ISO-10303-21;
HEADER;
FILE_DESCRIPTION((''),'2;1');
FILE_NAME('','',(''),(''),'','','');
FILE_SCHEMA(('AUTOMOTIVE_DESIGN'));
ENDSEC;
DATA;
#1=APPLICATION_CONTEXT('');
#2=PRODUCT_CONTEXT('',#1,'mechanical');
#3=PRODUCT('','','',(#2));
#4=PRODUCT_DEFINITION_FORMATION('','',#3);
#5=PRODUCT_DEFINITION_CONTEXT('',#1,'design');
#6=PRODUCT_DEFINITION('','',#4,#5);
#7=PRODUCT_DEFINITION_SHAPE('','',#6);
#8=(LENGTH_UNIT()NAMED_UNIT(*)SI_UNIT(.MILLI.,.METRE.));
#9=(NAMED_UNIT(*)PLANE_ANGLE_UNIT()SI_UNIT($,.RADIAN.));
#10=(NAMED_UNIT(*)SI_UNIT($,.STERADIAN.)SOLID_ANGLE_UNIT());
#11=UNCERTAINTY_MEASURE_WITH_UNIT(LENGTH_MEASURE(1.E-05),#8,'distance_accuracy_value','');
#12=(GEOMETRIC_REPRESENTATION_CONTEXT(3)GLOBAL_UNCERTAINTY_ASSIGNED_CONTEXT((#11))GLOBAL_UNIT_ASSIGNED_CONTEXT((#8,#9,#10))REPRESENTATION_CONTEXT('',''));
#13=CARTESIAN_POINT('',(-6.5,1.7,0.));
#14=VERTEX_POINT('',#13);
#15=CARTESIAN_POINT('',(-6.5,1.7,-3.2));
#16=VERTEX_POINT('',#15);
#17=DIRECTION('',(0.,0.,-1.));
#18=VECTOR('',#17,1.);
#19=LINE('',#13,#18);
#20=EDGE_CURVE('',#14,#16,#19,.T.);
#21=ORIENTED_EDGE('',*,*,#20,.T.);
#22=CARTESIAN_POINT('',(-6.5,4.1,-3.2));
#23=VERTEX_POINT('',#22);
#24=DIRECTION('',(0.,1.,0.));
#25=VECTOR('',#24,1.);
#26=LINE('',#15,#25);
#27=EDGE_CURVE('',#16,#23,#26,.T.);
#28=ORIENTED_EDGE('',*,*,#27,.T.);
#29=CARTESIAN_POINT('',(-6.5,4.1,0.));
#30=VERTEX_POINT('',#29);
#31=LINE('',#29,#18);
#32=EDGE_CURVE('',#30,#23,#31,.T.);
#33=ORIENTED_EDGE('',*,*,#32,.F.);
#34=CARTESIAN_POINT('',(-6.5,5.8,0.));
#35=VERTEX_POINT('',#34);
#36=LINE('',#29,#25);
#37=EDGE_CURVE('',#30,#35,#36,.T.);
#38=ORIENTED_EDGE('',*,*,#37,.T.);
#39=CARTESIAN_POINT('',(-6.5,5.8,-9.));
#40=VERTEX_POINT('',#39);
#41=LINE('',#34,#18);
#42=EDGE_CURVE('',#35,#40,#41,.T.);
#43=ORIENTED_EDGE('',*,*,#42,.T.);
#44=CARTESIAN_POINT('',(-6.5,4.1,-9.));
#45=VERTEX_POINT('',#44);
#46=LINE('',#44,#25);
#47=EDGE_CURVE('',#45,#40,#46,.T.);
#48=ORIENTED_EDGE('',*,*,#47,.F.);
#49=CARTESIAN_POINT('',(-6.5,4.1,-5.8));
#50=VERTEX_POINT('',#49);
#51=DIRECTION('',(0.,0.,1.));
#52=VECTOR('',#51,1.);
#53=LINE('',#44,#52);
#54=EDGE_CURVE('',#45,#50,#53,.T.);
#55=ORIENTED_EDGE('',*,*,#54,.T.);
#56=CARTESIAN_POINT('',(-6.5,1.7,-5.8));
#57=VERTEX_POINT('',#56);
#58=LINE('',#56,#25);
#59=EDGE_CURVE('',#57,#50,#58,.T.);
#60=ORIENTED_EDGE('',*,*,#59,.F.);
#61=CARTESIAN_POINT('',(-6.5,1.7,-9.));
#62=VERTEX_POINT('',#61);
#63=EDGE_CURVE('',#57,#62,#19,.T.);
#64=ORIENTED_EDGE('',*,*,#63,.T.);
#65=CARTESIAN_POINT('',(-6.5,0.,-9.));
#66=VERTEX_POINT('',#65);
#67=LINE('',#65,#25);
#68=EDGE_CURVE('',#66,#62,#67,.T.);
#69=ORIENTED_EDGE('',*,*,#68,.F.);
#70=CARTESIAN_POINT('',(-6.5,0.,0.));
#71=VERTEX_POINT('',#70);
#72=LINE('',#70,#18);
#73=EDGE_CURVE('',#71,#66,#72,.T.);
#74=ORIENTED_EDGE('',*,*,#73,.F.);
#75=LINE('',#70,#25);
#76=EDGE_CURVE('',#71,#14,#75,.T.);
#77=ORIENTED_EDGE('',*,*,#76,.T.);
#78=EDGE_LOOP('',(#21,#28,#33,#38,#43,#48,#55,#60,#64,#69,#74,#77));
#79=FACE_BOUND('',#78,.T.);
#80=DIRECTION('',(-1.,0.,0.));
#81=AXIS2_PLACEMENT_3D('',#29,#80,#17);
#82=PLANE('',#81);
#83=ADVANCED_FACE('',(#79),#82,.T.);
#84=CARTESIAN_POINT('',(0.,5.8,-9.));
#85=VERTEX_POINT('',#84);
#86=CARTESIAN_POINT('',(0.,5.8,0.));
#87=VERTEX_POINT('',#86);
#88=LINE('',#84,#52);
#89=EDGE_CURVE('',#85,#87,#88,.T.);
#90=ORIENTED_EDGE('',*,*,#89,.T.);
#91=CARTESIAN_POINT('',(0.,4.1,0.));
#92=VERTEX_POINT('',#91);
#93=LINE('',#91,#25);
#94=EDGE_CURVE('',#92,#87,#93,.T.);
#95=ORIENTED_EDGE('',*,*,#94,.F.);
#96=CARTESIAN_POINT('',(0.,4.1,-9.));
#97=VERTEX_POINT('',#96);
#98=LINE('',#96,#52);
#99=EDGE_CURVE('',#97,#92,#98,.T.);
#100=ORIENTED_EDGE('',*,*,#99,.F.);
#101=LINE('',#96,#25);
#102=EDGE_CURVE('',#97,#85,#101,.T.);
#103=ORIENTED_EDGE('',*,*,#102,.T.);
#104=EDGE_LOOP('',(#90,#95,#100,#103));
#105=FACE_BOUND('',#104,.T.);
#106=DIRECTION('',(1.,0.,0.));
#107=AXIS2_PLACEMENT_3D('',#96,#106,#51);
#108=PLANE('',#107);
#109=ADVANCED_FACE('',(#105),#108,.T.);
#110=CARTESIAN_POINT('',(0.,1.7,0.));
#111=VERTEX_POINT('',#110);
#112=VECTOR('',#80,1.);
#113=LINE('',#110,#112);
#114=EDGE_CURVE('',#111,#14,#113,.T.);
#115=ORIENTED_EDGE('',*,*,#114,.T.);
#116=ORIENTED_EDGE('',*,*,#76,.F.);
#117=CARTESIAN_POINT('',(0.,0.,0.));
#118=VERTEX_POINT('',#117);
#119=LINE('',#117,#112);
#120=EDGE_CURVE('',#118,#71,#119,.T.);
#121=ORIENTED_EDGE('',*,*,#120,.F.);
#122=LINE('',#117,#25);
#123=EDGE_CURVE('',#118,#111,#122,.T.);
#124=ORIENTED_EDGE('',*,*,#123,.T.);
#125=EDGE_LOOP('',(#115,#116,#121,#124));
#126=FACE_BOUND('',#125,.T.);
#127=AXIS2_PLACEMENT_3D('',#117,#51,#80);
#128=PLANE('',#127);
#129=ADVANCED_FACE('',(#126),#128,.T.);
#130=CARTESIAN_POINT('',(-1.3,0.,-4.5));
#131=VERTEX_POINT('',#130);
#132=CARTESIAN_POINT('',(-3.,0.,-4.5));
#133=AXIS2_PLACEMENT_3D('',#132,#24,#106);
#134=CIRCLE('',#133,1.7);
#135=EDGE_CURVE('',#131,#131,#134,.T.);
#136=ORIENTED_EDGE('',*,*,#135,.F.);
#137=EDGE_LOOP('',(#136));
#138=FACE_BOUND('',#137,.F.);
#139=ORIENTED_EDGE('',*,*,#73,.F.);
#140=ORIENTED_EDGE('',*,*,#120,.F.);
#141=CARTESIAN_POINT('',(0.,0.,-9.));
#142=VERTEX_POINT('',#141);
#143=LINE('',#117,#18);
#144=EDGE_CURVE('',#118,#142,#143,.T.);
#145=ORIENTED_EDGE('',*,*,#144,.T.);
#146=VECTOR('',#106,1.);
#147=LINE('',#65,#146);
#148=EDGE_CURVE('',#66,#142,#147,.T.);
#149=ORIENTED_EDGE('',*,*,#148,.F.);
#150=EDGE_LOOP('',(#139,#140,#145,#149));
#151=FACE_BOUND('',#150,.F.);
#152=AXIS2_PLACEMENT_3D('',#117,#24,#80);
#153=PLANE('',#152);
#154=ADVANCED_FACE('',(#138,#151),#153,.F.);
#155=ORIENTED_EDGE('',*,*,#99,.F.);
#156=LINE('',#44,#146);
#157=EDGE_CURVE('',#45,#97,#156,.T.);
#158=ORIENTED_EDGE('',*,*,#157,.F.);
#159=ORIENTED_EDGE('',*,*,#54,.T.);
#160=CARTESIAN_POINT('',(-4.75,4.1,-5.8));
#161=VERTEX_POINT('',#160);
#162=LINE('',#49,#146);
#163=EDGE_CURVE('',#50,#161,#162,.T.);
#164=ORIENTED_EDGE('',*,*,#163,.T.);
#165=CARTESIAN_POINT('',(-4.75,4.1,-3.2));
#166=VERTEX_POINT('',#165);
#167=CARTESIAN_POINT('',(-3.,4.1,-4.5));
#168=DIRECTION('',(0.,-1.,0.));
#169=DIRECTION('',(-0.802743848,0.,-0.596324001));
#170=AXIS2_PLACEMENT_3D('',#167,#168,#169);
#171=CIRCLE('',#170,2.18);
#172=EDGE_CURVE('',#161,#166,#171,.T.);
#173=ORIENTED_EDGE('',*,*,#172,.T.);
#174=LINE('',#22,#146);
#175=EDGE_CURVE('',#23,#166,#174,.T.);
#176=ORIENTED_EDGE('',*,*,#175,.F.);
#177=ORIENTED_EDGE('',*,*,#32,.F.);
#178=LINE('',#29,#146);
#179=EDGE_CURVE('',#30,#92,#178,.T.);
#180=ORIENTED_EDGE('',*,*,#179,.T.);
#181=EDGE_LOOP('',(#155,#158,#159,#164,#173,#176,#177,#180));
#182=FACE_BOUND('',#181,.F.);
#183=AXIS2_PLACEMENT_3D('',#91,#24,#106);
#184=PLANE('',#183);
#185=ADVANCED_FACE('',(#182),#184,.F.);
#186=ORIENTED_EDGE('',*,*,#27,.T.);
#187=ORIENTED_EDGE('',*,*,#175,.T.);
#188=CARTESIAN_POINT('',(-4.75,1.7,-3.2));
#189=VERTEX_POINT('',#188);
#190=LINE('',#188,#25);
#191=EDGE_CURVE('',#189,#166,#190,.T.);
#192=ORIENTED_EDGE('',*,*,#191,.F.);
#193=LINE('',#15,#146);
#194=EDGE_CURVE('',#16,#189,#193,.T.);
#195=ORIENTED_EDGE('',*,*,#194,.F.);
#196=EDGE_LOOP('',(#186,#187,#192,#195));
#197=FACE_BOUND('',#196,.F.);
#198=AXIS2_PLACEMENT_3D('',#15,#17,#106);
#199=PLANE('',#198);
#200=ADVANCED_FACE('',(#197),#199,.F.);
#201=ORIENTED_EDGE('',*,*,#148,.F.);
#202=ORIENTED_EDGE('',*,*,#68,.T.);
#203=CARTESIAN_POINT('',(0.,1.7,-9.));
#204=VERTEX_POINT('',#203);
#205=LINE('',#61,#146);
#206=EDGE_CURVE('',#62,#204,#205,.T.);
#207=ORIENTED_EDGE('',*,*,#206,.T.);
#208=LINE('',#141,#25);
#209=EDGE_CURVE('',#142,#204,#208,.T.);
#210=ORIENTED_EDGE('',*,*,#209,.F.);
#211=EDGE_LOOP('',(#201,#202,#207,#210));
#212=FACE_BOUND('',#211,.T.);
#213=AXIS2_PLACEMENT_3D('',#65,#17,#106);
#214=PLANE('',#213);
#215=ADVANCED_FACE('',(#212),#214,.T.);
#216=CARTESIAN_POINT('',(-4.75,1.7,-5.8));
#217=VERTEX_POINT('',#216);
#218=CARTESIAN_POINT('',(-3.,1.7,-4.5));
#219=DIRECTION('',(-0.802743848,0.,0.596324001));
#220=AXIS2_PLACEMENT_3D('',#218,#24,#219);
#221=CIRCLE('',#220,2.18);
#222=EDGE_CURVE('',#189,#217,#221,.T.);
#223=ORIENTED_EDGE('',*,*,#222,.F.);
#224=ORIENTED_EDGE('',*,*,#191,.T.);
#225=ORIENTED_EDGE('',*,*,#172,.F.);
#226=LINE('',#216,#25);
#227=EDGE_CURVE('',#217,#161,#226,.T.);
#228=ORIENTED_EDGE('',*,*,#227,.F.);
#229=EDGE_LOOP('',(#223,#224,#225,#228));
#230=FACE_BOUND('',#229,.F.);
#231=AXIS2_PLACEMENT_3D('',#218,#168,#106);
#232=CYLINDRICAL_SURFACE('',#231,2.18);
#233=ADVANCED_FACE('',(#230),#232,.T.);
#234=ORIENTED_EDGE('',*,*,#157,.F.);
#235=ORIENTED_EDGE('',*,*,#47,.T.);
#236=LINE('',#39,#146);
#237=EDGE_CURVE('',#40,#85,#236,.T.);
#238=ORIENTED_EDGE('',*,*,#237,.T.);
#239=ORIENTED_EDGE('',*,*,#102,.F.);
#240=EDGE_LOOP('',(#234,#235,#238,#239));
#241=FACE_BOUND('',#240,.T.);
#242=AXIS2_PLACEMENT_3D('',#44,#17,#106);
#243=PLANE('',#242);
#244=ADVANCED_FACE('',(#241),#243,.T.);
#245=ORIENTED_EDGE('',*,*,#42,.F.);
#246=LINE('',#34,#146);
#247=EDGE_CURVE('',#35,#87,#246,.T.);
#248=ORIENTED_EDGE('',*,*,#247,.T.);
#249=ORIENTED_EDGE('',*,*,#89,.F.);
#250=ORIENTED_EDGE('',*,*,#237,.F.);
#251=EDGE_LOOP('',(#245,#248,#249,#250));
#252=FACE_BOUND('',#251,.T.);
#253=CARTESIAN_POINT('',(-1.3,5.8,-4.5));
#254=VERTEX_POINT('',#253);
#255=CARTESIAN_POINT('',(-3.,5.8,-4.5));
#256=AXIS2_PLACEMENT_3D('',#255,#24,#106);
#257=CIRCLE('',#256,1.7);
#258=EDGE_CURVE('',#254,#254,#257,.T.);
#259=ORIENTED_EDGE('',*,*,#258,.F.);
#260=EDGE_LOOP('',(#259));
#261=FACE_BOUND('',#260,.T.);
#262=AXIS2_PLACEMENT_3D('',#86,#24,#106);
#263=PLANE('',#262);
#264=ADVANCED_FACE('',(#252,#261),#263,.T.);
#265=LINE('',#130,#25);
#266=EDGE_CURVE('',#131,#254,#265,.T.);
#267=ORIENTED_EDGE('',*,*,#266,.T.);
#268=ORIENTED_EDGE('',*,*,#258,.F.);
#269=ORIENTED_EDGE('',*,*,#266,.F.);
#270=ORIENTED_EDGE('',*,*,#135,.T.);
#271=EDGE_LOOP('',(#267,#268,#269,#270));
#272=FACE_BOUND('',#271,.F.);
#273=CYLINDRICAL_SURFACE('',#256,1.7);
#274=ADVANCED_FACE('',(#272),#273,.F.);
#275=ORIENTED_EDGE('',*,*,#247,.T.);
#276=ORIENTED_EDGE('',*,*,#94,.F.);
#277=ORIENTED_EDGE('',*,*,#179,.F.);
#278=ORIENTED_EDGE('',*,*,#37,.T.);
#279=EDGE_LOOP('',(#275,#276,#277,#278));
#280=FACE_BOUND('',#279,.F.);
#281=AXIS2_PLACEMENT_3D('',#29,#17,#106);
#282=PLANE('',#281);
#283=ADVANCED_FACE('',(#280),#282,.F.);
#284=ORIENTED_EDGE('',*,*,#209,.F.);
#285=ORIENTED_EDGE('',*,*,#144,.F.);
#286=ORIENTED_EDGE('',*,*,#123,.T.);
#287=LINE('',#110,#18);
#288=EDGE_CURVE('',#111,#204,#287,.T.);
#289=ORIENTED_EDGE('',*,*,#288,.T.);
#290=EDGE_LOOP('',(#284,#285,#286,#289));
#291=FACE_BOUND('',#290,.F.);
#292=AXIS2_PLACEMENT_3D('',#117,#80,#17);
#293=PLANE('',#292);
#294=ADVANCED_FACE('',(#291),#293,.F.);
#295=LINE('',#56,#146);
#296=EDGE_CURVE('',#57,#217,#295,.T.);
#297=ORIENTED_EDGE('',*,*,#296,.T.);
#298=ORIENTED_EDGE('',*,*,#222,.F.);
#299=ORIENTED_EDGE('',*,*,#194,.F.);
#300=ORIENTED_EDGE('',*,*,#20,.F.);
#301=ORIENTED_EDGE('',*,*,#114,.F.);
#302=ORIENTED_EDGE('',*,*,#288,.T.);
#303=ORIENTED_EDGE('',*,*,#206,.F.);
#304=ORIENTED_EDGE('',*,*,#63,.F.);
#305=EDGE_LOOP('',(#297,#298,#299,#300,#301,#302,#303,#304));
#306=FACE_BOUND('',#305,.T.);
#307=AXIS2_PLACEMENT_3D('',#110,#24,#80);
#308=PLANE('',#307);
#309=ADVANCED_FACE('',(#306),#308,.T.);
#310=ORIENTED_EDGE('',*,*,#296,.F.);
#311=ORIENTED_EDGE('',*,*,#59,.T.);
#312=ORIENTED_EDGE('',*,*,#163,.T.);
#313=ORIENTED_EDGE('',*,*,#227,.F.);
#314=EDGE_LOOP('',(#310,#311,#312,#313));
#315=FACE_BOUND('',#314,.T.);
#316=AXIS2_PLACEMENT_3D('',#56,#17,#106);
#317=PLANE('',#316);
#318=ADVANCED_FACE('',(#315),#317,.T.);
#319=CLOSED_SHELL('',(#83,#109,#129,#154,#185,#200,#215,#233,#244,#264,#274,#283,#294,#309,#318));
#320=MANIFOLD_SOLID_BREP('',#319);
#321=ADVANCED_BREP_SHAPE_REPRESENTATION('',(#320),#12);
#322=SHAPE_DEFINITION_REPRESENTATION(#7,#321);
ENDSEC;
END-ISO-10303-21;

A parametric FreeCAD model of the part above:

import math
import FreeCAD as App
import Part
import Sketcher

V = App.Vector
Q = App.Units.Quantity


def add_polygon(sketch, points):
    """Adds a closed chain of lines whose ends are joined by coincident constraints."""
    first, n = sketch.GeometryCount, len(points)
    for a, b in zip(points, points[1:] + points[:1]):
        sketch.addGeometry(Part.LineSegment(App.Vector(*a, 0), App.Vector(*b, 0)), False)
    for i in range(n):
        sketch.addConstraint(Sketcher.Constraint("Coincident", first + i, 2, first + (i + 1) % n, 1))

doc = App.newDocument("Part")
params = doc.addObject("Spreadsheet::Sheet", "Params")
for row, (alias, value) in enumerate([
    ("sketch1_height", "9 mm"),
    ("sketch1_width", "6.5 mm"),
    ("pad1_length", "1.7 mm"),
    ("sketch2_diameter", "3.4 mm"),
    ("pocket1_length", "1.7 mm"),
    ("sketch3_radius", "2.18 mm"),
    ("sketch3_height", "2.6 mm"),
    ("sketch3_width", "1.75 mm"),
    ("pad2_length", "2.4 mm"),
    ("sketch4_height", "9 mm"),
    ("sketch4_width", "6.5 mm"),
    ("pad3_length", "1.7 mm"),
    ("sketch5_diameter", "3.4 mm"),
    ("pocket2_length", "5.8 mm"),
], start=1):
    params.set(f"A{row}", alias)
    params.set(f"B{row}", "=" + value)
    params.setAlias(f"B{row}", alias)

body = doc.addObject("PartDesign::Body", "Body")

sketch1 = body.newObject("Sketcher::SketchObject", "Sketch")
sketch1.AttachmentSupport = (doc.getObject("XZ_Plane"), [""])
sketch1.MapMode = "FlatFace"
add_polygon(sketch1, [(-6, 0), (0, 0), (0, -9), (-6, -9)])
sketch1.addConstraint(Sketcher.Constraint("Horizontal", 0))
sketch1.addConstraint(Sketcher.Constraint("Vertical", 1))
sketch1.addConstraint(Sketcher.Constraint("Horizontal", 2))
sketch1.addConstraint(Sketcher.Constraint("Vertical", 3))
sketch1.addConstraint(Sketcher.Constraint("Coincident", 0, 2, -1, 1))
sketch1.addConstraint(Sketcher.Constraint("DistanceY", 1, 2, 1, 1, Q("9 mm")))
sketch1.addConstraint(Sketcher.Constraint("DistanceX", 0, 1, 0, 2, Q("6.5 mm")))
sketch1.setExpression("Constraints[9]", "Params.sketch1_height")
sketch1.setExpression("Constraints[10]", "Params.sketch1_width")
pad1 = body.newObject("PartDesign::Pad", "Pad")
pad1.Profile = sketch1
pad1.setExpression("Length", "Params.pad1_length")
pad1.Reversed = True

sketch2 = body.newObject("Sketcher::SketchObject", "Sketch001")
sketch2.AttachmentSupport = (doc.getObject("XZ_Plane"), [""])
sketch2.MapMode = "FlatFace"
sketch2.AttachmentOffset = App.Placement(V(0, 0, -1.7), App.Rotation())
sketch2.addGeometry(Part.Circle(V(-3, -4.5, 0), V(0, 0, 1), 1.7), False)
sketch2.addConstraint(Sketcher.Constraint("Diameter", 0, Q("3.4 mm")))
sketch2.addConstraint(Sketcher.Constraint("DistanceX", 0, 3, -1, 1, Q("3 mm")))
sketch2.addConstraint(Sketcher.Constraint("DistanceY", 0, 3, -1, 1, Q("4.5 mm")))
sketch2.setExpression("Constraints[0]", "Params.sketch2_diameter")
pocket1 = body.newObject("PartDesign::Pocket", "Pocket")
pocket1.Profile = sketch2
pocket1.setExpression("Length", "Params.pocket1_length")
pocket1.Reversed = True

sketch3 = body.newObject("Sketcher::SketchObject", "Sketch002")
sketch3.AttachmentSupport = (doc.getObject("XZ_Plane"), [""])
sketch3.MapMode = "FlatFace"
sketch3.AttachmentOffset = App.Placement(V(0, 0, -1.7), App.Rotation())
sketch3.addGeometry(Part.ArcOfCircle(Part.Circle(V(-3, -4.5, 0), V(0, 0, 1), 2.2), math.radians(-143), math.radians(143)), False)
sketch3.addGeometry(Part.LineSegment(V(-4.8, -5.8, 0), V(-6.5, -5.8, 0)), False)
sketch3.addGeometry(Part.LineSegment(V(-6.5, -5.8, 0), V(-6.5, -3.2, 0)), False)
sketch3.addGeometry(Part.LineSegment(V(-6.5, -3.2, 0), V(-4.8, -3.2, 0)), False)
sketch3.addConstraint(Sketcher.Constraint("Coincident", 0, 1, 1, 1))
sketch3.addConstraint(Sketcher.Constraint("Coincident", 1, 2, 2, 1))
sketch3.addConstraint(Sketcher.Constraint("Coincident", 2, 2, 3, 1))
sketch3.addConstraint(Sketcher.Constraint("Coincident", 3, 2, 0, 2))
sketch3.addConstraint(Sketcher.Constraint("Horizontal", 1))
sketch3.addConstraint(Sketcher.Constraint("Vertical", 2))
sketch3.addConstraint(Sketcher.Constraint("Horizontal", 3))
sketch3.addConstraint(Sketcher.Constraint("Vertical", 0, 1, 3, 2))
sketch3.addConstraint(Sketcher.Constraint("Radius", 0, Q("2.18 mm")))
sketch3.addConstraint(Sketcher.Constraint("DistanceY", 2, 1, 2, 2, Q("2.6 mm")))
sketch3.addConstraint(Sketcher.Constraint("DistanceX", 0, 3, -1, 1, Q("3 mm")))
sketch3.addConstraint(Sketcher.Constraint("DistanceX", 1, 2, 1, 1, Q("1.75 mm")))
sketch3.addConstraint(Sketcher.Constraint("DistanceY", 0, 3, -1, 1, Q("4.5 mm")))
sketch3.setExpression("Constraints[8]", "Params.sketch3_radius")
sketch3.setExpression("Constraints[9]", "Params.sketch3_height")
sketch3.setExpression("Constraints[11]", "Params.sketch3_width")
pad2 = body.newObject("PartDesign::Pad", "Pad001")
pad2.Profile = sketch3
pad2.setExpression("Length", "Params.pad2_length")
pad2.Reversed = True

sketch4 = body.newObject("Sketcher::SketchObject", "Sketch003")
sketch4.AttachmentSupport = (doc.getObject("XZ_Plane"), [""])
sketch4.MapMode = "FlatFace"
sketch4.AttachmentOffset = App.Placement(V(0, 0, -4.1), App.Rotation())
add_polygon(sketch4, [(-6, -9), (-6, 0), (0, 0), (0, -9)])
sketch4.addConstraint(Sketcher.Constraint("Vertical", 0))
sketch4.addConstraint(Sketcher.Constraint("Horizontal", 1))
sketch4.addConstraint(Sketcher.Constraint("Vertical", 2))
sketch4.addConstraint(Sketcher.Constraint("Horizontal", 3))
sketch4.addConstraint(Sketcher.Constraint("Coincident", 1, 2, -1, 1))
sketch4.addConstraint(Sketcher.Constraint("DistanceY", 0, 1, 0, 2, Q("9 mm")))
sketch4.addConstraint(Sketcher.Constraint("DistanceX", 1, 1, 1, 2, Q("6.5 mm")))
sketch4.setExpression("Constraints[9]", "Params.sketch4_height")
sketch4.setExpression("Constraints[10]", "Params.sketch4_width")
pad3 = body.newObject("PartDesign::Pad", "Pad002")
pad3.Profile = sketch4
pad3.setExpression("Length", "Params.pad3_length")
pad3.Reversed = True

sketch5 = body.newObject("Sketcher::SketchObject", "Sketch004")
sketch5.AttachmentSupport = (doc.getObject("XZ_Plane"), [""])
sketch5.MapMode = "FlatFace"
sketch5.AttachmentOffset = App.Placement(V(0, 0, -5.8), App.Rotation())
sketch5.addGeometry(Part.Circle(V(-3, -4.5, 0), V(0, 0, 1), 1.7), False)
sketch5.addConstraint(Sketcher.Constraint("Diameter", 0, Q("3.4 mm")))
sketch5.addConstraint(Sketcher.Constraint("DistanceX", 0, 3, -1, 1, Q("3 mm")))
sketch5.addConstraint(Sketcher.Constraint("DistanceY", 0, 3, -1, 1, Q("4.5 mm")))
sketch5.setExpression("Constraints[0]", "Params.sketch5_diameter")
pocket2 = body.newObject("PartDesign::Pocket", "Pocket001")
pocket2.Profile = sketch5
pocket2.setExpression("Length", "Params.pocket2_length")
pocket2.Reversed = True

doc.recompute()
